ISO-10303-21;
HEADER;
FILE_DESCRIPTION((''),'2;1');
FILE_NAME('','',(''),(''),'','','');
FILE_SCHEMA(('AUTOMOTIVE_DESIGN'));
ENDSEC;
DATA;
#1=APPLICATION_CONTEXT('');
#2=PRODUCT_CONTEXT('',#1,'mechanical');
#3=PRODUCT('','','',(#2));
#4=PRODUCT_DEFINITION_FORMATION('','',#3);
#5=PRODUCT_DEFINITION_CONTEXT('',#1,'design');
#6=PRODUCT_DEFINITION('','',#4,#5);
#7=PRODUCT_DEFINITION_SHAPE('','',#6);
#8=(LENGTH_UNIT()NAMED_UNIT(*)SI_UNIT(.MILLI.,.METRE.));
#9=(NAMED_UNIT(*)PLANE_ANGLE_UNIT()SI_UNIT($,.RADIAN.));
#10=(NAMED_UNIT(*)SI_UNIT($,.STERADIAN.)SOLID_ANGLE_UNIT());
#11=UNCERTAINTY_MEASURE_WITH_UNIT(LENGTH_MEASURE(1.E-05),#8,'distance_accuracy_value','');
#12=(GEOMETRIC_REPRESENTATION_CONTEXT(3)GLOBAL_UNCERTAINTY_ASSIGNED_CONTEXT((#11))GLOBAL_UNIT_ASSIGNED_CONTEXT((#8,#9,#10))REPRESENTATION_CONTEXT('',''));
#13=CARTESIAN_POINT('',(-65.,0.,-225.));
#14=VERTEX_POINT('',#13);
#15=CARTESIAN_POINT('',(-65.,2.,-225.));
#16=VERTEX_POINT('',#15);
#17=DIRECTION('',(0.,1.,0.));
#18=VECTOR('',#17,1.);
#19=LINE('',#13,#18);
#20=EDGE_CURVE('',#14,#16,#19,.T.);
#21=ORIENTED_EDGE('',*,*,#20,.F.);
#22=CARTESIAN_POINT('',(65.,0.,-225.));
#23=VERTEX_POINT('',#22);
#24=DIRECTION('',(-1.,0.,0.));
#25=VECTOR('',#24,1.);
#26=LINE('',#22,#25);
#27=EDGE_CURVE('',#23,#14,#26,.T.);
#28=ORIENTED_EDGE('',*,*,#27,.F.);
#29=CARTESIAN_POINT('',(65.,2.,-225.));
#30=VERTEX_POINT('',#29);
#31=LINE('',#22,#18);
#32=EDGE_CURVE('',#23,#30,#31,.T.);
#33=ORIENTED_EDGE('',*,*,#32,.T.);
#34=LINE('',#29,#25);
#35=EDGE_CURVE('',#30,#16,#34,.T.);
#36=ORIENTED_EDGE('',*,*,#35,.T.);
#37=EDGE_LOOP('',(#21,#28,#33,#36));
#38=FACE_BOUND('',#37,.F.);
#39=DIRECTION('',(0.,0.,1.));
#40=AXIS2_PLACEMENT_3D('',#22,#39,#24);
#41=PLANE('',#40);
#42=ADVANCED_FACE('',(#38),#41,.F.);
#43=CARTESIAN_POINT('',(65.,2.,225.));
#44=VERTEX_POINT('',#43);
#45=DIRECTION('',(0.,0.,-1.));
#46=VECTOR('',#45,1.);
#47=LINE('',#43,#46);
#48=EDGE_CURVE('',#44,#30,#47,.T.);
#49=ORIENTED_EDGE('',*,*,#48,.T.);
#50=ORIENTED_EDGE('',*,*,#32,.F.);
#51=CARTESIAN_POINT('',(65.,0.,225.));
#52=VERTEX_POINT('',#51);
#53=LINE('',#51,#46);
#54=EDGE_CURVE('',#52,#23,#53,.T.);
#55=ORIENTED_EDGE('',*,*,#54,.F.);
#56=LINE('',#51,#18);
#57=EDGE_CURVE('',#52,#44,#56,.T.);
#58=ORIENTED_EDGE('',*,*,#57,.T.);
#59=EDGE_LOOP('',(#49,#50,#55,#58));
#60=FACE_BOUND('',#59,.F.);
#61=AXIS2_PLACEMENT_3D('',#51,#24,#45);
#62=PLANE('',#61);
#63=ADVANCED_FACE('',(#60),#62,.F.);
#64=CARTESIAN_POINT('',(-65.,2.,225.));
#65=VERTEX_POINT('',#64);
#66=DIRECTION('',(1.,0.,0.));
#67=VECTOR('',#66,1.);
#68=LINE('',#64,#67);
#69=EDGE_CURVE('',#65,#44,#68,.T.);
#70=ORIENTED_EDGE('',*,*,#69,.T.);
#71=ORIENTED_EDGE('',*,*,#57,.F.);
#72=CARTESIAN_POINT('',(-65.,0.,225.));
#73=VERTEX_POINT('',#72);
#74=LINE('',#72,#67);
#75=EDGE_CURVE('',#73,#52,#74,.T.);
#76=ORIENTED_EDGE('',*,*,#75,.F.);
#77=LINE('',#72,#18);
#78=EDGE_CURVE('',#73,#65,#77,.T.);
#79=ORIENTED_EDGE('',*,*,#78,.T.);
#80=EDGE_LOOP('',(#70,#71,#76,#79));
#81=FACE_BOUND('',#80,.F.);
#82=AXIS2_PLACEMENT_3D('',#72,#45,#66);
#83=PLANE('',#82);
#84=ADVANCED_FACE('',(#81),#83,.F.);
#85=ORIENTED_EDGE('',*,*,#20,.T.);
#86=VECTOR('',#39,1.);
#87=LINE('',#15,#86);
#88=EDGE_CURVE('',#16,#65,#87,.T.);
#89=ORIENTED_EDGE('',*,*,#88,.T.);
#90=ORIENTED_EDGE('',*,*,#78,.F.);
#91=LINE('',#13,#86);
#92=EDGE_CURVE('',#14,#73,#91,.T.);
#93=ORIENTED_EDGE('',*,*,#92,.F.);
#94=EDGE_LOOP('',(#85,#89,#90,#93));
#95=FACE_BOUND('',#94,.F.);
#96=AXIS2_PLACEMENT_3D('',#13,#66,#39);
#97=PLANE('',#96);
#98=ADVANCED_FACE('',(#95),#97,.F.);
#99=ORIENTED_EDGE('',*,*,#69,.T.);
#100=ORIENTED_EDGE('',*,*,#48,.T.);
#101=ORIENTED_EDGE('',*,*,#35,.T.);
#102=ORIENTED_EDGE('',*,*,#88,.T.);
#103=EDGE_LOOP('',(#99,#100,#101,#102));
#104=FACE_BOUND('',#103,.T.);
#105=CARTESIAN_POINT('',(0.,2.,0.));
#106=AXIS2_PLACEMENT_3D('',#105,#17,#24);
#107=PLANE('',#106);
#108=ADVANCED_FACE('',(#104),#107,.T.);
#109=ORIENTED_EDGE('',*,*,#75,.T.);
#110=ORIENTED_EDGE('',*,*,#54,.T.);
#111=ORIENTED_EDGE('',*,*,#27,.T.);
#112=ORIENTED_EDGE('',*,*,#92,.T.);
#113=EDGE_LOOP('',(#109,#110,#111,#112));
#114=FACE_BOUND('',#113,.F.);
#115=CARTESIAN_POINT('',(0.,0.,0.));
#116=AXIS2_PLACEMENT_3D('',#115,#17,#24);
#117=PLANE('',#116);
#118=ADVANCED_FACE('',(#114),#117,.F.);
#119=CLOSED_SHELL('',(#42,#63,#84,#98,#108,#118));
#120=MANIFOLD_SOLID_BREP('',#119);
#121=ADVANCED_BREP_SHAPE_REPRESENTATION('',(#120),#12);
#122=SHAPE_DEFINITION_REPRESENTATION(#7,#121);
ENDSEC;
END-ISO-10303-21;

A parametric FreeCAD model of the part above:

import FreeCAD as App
import Part
import Sketcher
from FreeCAD import Vector

doc = App.newDocument("Part")
body = doc.addObject("PartDesign::Body", "Body")

sketch1 = body.newObject("Sketcher::SketchObject", "Sketch")
sketch1.AttachmentSupport = (doc.getObject("XZ_Plane"), [""])
sketch1.MapMode = "FlatFace"
sketch1.addGeometry(Part.LineSegment(Vector(-65, -225, 0), Vector(-65, 225, 0)), False)
sketch1.addGeometry(Part.LineSegment(Vector(-65, 225, 0), Vector(65, 225, 0)), False)
sketch1.addGeometry(Part.LineSegment(Vector(65, 225, 0), Vector(65, -225, 0)), False)
sketch1.addGeometry(Part.LineSegment(Vector(65, -225, 0), Vector(-65, -225, 0)), False)
sketch1.addConstraint(Sketcher.Constraint("Coincident", 0, 2, 1, 1))
sketch1.addConstraint(Sketcher.Constraint("Coincident", 1, 2, 2, 1))
sketch1.addConstraint(Sketcher.Constraint("Coincident", 2, 2, 3, 1))
sketch1.addConstraint(Sketcher.Constraint("Coincident", 3, 2, 0, 1))
sketch1.addConstraint(Sketcher.Constraint("Vertical", 0))
sketch1.addConstraint(Sketcher.Constraint("Horizontal", 1))
sketch1.addConstraint(Sketcher.Constraint("Vertical", 2))
sketch1.addConstraint(Sketcher.Constraint("Horizontal", 3))
sketch1.addConstraint(Sketcher.Constraint("Symmetric", 0, 2, 2, 2, -1, 1))
sketch1.addConstraint(Sketcher.Constraint("DistanceX", 1, 1, 1, 2, 130.0))
sketch1.addConstraint(Sketcher.Constraint("DistanceY", 0, 1, 0, 2, 450.0))
pad1 = body.newObject("PartDesign::Pad", "Pad")
pad1.Profile = sketch1
pad1.Length = 2
pad1.Reversed = True

doc.recompute()
